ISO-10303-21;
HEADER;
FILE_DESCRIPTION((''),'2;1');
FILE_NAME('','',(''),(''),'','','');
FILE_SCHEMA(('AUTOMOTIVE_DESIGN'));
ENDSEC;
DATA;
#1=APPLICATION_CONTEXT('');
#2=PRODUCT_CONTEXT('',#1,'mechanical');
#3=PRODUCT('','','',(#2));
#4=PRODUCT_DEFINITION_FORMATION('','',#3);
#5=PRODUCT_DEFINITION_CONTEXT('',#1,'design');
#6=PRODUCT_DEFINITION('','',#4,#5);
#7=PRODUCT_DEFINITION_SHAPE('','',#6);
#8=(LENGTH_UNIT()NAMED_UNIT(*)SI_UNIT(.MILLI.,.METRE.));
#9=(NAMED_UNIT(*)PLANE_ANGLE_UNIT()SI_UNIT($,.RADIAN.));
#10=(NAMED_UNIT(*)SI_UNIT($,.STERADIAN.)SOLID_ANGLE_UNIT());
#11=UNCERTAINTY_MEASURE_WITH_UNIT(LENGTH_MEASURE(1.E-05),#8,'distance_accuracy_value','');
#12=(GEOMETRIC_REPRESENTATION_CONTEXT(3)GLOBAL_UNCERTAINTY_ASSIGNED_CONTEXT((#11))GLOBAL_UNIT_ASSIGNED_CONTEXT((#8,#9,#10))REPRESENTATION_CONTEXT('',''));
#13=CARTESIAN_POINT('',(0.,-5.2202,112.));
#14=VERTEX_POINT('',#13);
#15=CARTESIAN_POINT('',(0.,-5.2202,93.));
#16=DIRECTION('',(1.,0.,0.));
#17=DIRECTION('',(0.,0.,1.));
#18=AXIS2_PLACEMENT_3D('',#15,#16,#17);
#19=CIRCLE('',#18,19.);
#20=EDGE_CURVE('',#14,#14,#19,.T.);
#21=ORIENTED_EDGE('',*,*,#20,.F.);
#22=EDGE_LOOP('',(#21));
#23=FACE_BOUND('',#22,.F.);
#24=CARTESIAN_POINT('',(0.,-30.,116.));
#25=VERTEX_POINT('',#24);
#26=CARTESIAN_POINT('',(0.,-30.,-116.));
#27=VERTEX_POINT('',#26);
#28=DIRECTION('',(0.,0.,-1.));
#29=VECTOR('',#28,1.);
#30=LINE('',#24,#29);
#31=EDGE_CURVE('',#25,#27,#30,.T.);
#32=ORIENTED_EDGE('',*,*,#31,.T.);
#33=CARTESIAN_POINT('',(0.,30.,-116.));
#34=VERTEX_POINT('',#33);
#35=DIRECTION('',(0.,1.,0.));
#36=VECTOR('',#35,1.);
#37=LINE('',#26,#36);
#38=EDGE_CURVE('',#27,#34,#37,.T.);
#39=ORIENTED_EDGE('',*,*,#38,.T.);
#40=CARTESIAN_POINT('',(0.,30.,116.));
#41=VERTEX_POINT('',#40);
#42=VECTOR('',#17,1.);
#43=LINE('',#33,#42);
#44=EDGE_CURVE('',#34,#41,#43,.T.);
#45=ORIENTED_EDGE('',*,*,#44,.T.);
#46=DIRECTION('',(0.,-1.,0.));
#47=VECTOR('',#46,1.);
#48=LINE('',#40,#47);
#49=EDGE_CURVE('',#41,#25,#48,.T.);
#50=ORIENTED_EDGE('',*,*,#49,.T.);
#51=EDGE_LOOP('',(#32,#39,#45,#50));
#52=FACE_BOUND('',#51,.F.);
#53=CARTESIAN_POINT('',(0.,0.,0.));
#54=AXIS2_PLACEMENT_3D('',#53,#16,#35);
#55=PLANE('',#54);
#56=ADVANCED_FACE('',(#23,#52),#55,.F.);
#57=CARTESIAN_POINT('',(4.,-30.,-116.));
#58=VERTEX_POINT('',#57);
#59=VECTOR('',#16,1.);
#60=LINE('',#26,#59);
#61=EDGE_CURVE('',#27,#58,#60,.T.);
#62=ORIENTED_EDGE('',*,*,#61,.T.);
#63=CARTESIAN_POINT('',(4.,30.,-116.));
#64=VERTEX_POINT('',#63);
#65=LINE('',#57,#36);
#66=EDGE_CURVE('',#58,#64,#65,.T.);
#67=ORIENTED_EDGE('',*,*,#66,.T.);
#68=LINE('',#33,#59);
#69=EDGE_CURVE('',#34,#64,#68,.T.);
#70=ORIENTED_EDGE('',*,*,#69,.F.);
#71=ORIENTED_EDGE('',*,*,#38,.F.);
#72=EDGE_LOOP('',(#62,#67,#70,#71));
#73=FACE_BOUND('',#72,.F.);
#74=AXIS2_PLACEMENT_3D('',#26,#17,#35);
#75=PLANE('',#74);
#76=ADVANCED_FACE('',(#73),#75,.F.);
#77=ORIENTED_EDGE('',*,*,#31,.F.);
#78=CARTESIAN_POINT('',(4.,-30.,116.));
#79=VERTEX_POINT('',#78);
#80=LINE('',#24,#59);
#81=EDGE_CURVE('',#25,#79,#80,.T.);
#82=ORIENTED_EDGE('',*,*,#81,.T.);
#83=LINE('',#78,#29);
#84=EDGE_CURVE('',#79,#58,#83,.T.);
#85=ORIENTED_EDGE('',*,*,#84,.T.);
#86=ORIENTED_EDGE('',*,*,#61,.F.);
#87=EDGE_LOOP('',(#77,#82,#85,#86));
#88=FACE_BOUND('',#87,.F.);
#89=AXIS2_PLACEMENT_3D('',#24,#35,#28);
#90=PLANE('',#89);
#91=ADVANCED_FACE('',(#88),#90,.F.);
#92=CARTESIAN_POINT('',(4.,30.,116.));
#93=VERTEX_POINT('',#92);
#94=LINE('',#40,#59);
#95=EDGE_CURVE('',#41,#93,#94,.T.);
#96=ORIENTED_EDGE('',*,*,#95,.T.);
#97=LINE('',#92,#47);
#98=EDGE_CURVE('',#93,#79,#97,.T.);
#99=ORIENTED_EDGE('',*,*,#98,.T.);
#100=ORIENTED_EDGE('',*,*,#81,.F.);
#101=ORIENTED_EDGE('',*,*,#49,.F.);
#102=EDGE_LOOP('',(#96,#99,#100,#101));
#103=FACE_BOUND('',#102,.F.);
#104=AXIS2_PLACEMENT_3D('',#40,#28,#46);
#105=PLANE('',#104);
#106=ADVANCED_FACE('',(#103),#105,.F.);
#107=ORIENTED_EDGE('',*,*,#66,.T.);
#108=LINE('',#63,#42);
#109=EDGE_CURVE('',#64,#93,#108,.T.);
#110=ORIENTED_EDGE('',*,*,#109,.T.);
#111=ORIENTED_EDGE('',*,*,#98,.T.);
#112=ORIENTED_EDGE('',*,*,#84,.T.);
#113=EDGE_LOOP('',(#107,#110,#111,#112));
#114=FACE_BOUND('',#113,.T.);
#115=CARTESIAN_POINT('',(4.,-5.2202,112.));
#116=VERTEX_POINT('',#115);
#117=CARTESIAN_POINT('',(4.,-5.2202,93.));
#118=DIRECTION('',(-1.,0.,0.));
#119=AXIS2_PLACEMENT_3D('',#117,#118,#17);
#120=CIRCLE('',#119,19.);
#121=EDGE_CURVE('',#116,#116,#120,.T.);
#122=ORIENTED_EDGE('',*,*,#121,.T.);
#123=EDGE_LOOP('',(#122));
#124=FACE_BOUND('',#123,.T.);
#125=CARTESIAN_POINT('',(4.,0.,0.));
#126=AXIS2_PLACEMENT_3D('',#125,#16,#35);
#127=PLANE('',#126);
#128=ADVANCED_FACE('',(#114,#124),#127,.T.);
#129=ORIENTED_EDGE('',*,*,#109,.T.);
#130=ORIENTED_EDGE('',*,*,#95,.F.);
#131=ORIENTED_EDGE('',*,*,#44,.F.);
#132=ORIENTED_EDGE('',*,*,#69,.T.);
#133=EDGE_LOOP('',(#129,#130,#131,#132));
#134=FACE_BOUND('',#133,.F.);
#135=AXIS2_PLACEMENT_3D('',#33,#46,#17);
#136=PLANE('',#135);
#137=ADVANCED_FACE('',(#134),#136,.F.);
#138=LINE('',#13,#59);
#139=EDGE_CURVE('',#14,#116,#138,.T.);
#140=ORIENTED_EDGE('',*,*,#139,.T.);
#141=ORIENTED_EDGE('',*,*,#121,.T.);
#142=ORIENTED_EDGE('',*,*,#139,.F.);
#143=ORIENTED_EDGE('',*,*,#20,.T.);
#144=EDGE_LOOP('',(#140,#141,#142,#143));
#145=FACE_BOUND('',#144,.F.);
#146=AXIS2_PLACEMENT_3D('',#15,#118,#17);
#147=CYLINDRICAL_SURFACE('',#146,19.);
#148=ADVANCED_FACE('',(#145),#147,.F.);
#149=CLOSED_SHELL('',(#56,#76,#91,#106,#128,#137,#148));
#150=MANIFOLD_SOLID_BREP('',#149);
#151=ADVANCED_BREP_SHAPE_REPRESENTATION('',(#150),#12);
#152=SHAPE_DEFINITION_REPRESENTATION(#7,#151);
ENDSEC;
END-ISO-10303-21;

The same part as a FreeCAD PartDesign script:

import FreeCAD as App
import Part
import Sketcher

V = App.Vector


def add_polygon(sketch, points):
    """Adds a closed chain of lines whose ends are joined by coincident constraints."""
    first, n = sketch.GeometryCount, len(points)
    for a, b in zip(points, points[1:] + points[:1]):
        sketch.addGeometry(Part.LineSegment(App.Vector(*a, 0), App.Vector(*b, 0)), False)
    for i in range(n):
        sketch.addConstraint(Sketcher.Constraint("Coincident", first + i, 2, first + (i + 1) % n, 1))

doc = App.newDocument("Part")
params = doc.addObject("Spreadsheet::Sheet", "Params")
for row, (alias, value) in enumerate([
    ("sketch1_width", "60 mm"),
    ("sketch1_height", "232 mm"),
    ("pad1_length", "4 mm"),
    ("sketch2_diameter", "38 mm"),
    ("pocket1_length", "10 mm"),
], start=1):
    params.set(f"A{row}", alias)
    params.set(f"B{row}", "=" + value)
    params.setAlias(f"B{row}", alias)

body = doc.addObject("PartDesign::Body", "Body")

sketch1 = body.newObject("Sketcher::SketchObject", "Sketch")
sketch1.AttachmentSupport = (doc.getObject("YZ_Plane"), [""])
sketch1.MapMode = "FlatFace"
add_polygon(sketch1, [(30, -116), (30, 116), (-30, 116), (-30, -116)])
sketch1.addConstraint([
    Sketcher.Constraint("Vertical", 0),
    Sketcher.Constraint("Horizontal", 1),
    Sketcher.Constraint("Vertical", 2),
    Sketcher.Constraint("Horizontal", 3),
    Sketcher.Constraint("Symmetric", 0, 2, 2, 2, -1, 1),
    Sketcher.Constraint("DistanceX", 1, 2, 1, 1, 60.0),
    Sketcher.Constraint("DistanceY", 0, 1, 0, 2, 232.0),
])
sketch1.setExpression("Constraints[9]", "Params.sketch1_width")
sketch1.setExpression("Constraints[10]", "Params.sketch1_height")
pad1 = body.newObject("PartDesign::Pad", "Pad")
pad1.Profile = sketch1
pad1.setExpression("Length", "Params.pad1_length")

sketch2 = body.newObject("Sketcher::SketchObject", "Sketch001")
sketch2.AttachmentSupport = (doc.getObject("YZ_Plane"), [""])
sketch2.MapMode = "FlatFace"
sketch2.addGeometry(Part.Circle(V(-5.2202, 93, 0), V(0, 0, 1), 19), False)
sketch2.addConstraint([
    Sketcher.Constraint("Diameter", 0, 38.0),
    Sketcher.Constraint("DistanceY", -1, 1, 0, 3, 93.0),
    Sketcher.Constraint("DistanceX", 0, 3, -1, 1, 5.2202),
])
sketch2.setExpression("Constraints[0]", "Params.sketch2_diameter")
pocket1 = body.newObject("PartDesign::Pocket", "Pocket")
pocket1.Profile = sketch2
pocket1.setExpression("Length", "Params.pocket1_length")
pocket1.Midplane = True

doc.recompute()
